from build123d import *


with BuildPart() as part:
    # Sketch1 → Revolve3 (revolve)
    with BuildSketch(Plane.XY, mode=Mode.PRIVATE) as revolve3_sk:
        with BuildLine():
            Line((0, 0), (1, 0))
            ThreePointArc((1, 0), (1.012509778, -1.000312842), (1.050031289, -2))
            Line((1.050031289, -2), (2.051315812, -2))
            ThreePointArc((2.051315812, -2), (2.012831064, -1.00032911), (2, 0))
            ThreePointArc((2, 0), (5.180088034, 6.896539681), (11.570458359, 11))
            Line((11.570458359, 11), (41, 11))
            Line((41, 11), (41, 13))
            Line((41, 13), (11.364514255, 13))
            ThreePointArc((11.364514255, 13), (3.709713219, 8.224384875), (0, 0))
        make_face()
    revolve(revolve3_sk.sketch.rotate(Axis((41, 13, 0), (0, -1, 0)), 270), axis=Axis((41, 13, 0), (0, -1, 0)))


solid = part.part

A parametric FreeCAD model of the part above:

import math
import FreeCAD as App
import Part
import Sketcher

V = App.Vector

doc = App.newDocument("Part")
body = doc.addObject("PartDesign::Body", "Body")

# Sketch on XY plane
sketch1 = doc.addObject("Sketcher::SketchObject", "Sketch")
body.addObject(sketch1)
sketch1.AttachmentSupport = (doc.XY_Plane, [""])
sketch1.MapMode = "FlatFace"
sketch1.addGeometry([
    Part.LineSegment(V(0, 0, 0), V(1, 0, 0)),  # 0
    Part.ArcOfCircle(Part.Circle(V(40.999999, 0, 0), V(0, 0, 1), 39.999999), math.radians(180), math.radians(182.865984)),  # 1
    Part.LineSegment(V(1.050031, -2, 0), V(2.051316, -2, 0)),  # 2
    Part.ArcOfCircle(Part.Circle(V(41.000001, 0, 0), V(0, 0, 1), 39.000001), math.radians(-180), math.radians(-177.060466)),  # 3
    Part.ArcOfCircle(Part.Circle(V(15.405506, -2, 0), V(0, 0, 1), 13.553877), math.radians(106.436252), math.radians(171.514492)),  # 4
    Part.LineSegment(V(11.570458, 11, 0), V(41, 11, 0)),  # 5
    Part.LineSegment(V(41, 11, 0), V(41, 13, 0)),  # 6
    Part.LineSegment(V(41, 13, 0), V(11.364514, 13, 0)),  # 7
    Part.ArcOfCircle(Part.Circle(V(15.405506, -2, 0), V(0, 0, 1), 15.534787), math.radians(105.077499), math.radians(172.603021)),  # 8
], False)
sketch1.addGeometry(Part.LineSegment(V(41, 13, 0), V(41, -2, 0)), True)  # axis
sketch1.addConstraint([
    Sketcher.Constraint("Coincident", 0, 2, 1, 1),
    Sketcher.Constraint("Coincident", 1, 2, 2, 1),
    Sketcher.Constraint("Coincident", 2, 2, 3, 2),
    Sketcher.Constraint("Coincident", 3, 1, 4, 2),
    Sketcher.Constraint("Coincident", 4, 1, 5, 1),
    Sketcher.Constraint("Coincident", 5, 2, 6, 1),
    Sketcher.Constraint("Coincident", 6, 2, 7, 1),
    Sketcher.Constraint("Coincident", 7, 2, 8, 1),
    Sketcher.Constraint("Coincident", 8, 2, 0, 1),
    Sketcher.Constraint("Horizontal", 0),
    Sketcher.Constraint("Horizontal", 2),
    Sketcher.Constraint("Horizontal", 5),
    Sketcher.Constraint("Vertical", 6),
    Sketcher.Constraint("Horizontal", 7),
    Sketcher.Constraint("Vertical", 9),
    Sketcher.Constraint("Coincident", 8, 2, -1, 1),
    Sketcher.Constraint("Coincident", 3, 3, 1, 3),
    Sketcher.Constraint("Coincident", 8, 3, 4, 3),
    Sketcher.Constraint("Coincident", 9, 1, 6, 2),
    Sketcher.Constraint("PointOnObject", 1, 3, -1),
    Sketcher.Constraint("PointOnObject", 3, 1, -1),
    Sketcher.Constraint("Horizontal", 8, 3, 1, 2),
    Sketcher.Constraint("Horizontal", 2, 2, 9, 2),
    Sketcher.Constraint("Vertical", 3, 3, 5, 2),
    Sketcher.Constraint("Radius", 1, 39.999999),
    Sketcher.Constraint("Radius", 3, 39.000001),
    Sketcher.Constraint("DistanceX", 0, 1, 0, 2, 1.0),
    Sketcher.Constraint("DistanceY", 6, 1, 6, 2, 2.0),
    Sketcher.Constraint("DistanceY", 9, 2, 9, 1, 15.0),
    Sketcher.Constraint("DistanceY", 4, 3, -1, 1, 2.0),
    Sketcher.Constraint("Radius", 4, 13.553877),
])
revolution = doc.addObject("PartDesign::Revolution", "Revolution")
body.addObject(revolution)
revolution.Profile = sketch1
revolution.ReferenceAxis = (sketch1, ["Axis0"])
revolution.Angle = 360

doc.recompute()
